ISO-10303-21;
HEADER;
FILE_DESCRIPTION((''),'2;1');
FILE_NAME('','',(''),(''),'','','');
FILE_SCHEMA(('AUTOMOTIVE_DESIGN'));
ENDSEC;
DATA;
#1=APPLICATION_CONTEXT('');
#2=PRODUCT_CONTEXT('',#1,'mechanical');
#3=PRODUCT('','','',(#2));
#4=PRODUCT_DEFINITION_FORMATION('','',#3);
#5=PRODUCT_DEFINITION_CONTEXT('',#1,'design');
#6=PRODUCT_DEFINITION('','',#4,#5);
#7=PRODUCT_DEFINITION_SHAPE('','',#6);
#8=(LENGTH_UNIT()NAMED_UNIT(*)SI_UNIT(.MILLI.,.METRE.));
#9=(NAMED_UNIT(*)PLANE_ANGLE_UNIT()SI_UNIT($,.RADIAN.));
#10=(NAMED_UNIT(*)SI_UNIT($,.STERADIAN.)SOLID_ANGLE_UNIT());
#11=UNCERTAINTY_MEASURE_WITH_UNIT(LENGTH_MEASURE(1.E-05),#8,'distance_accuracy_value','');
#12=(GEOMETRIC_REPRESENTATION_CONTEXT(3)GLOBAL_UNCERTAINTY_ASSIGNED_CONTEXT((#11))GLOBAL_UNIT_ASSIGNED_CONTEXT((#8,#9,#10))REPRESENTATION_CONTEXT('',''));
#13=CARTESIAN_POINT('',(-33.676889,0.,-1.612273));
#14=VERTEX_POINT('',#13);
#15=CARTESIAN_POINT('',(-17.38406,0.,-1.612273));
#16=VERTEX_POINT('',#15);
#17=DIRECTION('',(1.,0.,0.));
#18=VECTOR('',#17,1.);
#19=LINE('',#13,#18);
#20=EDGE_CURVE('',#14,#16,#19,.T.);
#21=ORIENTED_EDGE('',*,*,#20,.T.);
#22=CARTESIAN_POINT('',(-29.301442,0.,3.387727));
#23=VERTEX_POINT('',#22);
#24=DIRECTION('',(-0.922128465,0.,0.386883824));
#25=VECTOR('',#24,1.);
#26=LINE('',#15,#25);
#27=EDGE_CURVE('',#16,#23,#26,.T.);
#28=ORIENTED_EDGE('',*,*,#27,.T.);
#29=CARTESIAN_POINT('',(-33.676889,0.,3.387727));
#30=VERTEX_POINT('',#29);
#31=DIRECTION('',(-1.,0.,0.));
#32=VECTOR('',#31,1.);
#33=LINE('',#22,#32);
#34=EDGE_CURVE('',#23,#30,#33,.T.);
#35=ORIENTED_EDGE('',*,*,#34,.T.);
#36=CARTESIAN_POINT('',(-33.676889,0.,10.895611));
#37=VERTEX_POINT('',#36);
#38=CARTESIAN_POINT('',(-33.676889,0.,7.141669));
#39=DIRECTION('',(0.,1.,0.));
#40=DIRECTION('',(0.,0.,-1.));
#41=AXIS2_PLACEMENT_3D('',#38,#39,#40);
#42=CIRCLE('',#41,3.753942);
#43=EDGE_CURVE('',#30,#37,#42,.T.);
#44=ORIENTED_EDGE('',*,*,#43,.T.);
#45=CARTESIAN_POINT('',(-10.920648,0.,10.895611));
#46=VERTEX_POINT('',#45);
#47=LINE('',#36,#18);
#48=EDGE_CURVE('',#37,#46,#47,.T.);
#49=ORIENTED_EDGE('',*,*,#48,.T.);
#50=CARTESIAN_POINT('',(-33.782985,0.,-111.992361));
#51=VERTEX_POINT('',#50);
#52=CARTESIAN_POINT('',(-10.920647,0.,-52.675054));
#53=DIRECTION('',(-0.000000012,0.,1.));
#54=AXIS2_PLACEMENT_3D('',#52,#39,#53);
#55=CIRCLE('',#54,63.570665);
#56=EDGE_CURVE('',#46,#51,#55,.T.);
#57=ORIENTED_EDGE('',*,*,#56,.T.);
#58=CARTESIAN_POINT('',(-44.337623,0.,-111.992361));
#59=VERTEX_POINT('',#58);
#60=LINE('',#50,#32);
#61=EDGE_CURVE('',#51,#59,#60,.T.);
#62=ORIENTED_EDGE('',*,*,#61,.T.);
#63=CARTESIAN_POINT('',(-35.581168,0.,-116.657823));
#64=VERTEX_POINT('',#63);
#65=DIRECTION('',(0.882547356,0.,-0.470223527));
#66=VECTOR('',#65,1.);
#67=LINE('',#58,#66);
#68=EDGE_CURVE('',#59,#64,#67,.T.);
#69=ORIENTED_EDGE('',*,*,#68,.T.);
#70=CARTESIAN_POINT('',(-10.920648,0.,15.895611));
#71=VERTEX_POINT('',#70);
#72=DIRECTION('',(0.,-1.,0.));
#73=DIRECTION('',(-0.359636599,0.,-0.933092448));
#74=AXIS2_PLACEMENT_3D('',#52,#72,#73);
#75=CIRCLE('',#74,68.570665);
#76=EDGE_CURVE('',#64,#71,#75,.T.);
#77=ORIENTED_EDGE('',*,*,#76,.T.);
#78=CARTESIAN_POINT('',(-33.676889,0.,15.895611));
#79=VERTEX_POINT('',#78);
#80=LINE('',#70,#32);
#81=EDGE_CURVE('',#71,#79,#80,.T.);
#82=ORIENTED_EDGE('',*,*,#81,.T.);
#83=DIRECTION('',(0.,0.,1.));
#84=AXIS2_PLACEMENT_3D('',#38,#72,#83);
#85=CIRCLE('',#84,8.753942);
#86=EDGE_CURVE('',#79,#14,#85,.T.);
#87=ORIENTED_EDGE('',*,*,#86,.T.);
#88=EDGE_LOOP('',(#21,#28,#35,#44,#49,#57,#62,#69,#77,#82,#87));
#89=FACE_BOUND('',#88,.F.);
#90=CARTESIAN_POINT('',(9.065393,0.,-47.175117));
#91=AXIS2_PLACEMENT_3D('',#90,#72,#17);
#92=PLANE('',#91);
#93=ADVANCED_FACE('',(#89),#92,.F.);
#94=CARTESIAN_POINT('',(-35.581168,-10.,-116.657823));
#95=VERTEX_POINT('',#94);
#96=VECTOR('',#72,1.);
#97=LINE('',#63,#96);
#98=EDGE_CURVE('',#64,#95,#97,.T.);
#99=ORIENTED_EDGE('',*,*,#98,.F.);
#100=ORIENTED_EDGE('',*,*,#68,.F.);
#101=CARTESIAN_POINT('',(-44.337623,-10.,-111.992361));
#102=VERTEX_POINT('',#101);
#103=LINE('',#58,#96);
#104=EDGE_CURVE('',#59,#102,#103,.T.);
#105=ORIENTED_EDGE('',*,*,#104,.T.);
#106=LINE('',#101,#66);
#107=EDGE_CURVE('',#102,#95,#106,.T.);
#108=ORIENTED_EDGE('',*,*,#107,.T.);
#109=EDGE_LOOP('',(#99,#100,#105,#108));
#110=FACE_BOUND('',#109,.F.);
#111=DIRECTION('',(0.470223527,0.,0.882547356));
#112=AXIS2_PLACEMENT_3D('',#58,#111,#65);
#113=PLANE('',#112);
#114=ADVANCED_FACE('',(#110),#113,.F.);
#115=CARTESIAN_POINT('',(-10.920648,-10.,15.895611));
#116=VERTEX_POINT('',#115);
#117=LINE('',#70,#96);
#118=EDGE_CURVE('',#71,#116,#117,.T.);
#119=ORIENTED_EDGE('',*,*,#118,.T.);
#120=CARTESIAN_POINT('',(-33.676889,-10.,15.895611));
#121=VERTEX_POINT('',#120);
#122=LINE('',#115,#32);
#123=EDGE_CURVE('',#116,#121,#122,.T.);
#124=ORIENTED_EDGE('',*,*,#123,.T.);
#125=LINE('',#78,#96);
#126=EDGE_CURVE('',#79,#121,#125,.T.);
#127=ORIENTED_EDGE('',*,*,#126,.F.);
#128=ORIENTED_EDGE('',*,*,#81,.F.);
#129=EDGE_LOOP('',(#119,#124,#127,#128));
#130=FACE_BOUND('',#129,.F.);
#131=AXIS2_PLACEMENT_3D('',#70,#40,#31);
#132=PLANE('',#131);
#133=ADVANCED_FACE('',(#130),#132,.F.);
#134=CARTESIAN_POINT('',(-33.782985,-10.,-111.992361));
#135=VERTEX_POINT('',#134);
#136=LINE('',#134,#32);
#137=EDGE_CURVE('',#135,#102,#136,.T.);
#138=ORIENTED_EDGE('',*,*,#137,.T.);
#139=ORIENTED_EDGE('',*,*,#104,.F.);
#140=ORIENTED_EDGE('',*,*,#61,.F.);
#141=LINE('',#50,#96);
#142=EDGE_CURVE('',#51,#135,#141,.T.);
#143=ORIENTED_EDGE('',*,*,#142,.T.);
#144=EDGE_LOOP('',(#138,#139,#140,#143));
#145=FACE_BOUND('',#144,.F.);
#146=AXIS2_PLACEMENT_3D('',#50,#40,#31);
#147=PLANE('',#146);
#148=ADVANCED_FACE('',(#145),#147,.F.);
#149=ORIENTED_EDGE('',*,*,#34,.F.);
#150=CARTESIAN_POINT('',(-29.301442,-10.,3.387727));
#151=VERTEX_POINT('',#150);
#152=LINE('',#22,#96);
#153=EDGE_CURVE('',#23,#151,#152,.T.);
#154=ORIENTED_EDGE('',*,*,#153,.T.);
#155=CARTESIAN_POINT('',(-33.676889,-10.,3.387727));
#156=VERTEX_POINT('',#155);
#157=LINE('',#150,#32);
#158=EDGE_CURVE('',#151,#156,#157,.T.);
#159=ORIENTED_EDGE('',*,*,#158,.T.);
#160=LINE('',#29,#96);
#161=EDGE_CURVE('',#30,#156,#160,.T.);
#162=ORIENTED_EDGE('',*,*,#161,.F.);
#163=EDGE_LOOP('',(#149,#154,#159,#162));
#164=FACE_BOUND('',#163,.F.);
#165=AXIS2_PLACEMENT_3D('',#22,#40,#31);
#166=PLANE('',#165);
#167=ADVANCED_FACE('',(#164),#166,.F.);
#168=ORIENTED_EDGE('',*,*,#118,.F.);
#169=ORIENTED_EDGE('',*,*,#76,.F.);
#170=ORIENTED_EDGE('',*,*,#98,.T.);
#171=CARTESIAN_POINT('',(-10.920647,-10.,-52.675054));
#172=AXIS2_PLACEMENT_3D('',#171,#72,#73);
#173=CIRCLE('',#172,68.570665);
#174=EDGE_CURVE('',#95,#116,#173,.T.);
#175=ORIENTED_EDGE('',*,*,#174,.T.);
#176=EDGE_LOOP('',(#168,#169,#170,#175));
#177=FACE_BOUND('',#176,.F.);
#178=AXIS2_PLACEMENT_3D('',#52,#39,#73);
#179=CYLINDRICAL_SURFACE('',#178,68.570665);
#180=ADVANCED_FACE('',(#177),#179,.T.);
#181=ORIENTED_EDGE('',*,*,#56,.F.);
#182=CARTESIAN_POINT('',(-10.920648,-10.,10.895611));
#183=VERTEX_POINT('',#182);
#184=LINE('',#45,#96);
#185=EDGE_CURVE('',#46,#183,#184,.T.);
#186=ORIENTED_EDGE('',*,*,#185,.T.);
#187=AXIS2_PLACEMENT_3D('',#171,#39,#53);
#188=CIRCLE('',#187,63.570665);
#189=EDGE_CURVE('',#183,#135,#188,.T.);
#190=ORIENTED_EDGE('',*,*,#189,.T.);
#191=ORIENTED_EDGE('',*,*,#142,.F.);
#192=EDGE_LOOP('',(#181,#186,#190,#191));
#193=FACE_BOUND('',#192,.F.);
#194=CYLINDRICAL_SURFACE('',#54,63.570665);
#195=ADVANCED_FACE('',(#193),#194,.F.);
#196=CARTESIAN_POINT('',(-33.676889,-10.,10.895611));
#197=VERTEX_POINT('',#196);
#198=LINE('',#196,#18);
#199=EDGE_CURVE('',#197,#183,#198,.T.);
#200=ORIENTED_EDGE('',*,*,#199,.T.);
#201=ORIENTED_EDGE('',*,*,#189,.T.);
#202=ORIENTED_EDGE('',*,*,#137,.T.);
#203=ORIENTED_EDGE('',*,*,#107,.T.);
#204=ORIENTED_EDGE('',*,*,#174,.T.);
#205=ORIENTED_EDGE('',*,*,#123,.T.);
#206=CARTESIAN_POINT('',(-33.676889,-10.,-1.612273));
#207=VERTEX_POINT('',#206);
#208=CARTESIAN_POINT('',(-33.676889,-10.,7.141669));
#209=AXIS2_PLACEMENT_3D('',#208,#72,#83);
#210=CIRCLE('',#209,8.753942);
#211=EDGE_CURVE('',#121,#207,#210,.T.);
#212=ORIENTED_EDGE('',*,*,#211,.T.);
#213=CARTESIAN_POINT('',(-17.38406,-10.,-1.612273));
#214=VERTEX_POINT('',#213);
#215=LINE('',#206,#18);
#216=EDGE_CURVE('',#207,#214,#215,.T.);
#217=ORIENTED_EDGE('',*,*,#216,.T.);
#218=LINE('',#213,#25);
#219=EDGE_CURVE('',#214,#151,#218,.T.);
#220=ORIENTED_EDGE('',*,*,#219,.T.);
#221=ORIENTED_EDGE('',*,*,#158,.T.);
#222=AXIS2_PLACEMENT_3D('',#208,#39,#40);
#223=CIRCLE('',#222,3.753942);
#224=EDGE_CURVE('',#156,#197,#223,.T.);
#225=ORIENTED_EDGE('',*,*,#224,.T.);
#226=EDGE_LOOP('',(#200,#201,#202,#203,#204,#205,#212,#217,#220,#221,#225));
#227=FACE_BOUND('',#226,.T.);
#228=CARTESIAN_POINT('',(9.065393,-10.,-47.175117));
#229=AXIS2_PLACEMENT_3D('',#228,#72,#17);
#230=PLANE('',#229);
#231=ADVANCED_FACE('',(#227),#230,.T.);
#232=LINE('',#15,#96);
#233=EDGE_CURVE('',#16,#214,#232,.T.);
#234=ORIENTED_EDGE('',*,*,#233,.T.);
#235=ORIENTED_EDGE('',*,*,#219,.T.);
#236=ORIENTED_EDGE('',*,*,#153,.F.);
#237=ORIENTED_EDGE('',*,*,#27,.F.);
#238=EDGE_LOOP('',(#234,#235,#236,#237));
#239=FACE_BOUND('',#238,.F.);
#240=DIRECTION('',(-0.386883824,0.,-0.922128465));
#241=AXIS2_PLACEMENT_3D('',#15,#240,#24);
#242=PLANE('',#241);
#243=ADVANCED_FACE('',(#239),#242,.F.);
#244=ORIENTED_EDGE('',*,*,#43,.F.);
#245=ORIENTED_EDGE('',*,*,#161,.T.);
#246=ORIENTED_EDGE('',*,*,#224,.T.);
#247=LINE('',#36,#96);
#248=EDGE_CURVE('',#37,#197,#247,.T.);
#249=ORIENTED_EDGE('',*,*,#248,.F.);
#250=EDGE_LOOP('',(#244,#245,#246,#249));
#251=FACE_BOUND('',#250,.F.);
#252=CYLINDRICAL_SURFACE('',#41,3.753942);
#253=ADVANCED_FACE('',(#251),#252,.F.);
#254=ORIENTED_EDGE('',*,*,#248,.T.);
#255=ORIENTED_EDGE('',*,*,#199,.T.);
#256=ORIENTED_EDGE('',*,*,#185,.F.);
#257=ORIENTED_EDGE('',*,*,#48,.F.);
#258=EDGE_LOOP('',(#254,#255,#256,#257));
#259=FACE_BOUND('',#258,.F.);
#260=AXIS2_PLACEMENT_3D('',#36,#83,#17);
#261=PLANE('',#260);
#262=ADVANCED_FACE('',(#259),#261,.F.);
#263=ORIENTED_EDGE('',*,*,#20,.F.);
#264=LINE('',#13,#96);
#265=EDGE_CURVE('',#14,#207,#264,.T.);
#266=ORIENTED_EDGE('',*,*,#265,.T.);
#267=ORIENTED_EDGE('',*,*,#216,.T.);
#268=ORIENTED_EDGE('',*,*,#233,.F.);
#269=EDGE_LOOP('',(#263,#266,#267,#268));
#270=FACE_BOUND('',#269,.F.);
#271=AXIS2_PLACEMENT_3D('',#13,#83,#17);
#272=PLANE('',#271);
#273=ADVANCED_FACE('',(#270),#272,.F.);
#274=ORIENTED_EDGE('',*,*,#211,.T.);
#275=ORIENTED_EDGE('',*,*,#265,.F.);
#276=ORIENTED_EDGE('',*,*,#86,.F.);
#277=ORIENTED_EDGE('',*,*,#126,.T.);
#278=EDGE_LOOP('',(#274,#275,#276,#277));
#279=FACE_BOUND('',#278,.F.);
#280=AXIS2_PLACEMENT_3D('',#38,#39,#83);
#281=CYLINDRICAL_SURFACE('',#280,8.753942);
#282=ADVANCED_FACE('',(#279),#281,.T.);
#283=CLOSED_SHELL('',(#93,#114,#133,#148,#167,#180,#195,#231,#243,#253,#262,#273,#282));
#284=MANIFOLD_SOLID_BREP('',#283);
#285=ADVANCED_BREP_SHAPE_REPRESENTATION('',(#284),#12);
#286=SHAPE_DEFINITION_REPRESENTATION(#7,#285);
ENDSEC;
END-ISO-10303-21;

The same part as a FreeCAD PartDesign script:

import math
import FreeCAD as App
import Part
import Sketcher

V = App.Vector
Q = App.Units.Quantity

doc = App.newDocument("Part")
body = doc.addObject("PartDesign::Body", "Body")

sketch1 = body.newObject("Sketcher::SketchObject", "Sketch")
sketch1.AttachmentSupport = (doc.getObject("XZ_Plane"), [""])
sketch1.MapMode = "FlatFace"
sketch1.addGeometry([
    Part.ArcOfCircle(Part.Circle(V(-10.9, -52.7, 0), V(0, 0, 1), 68.6), math.radians(-111), math.radians(90)),
    Part.LineSegment(V(-10.9, 15.9, 0), V(-33.7, 15.9, 0)),
    Part.ArcOfCircle(Part.Circle(V(-33.7, 7.1, 0), V(0, 0, 1), 8.8), math.radians(90), math.radians(270)),
    Part.LineSegment(V(-33.7, -1.6, 0), V(-17.4, -1.6, 0)),
    Part.LineSegment(V(-17.4, -1.6, 0), V(-29.3, 3.4, 0)),
    Part.LineSegment(V(-29.3, 3.4, 0), V(-33.7, 3.4, 0)),
    Part.ArcOfCircle(Part.Circle(V(-33.7, 7.1, 0), V(0, 0, 1), 3.8), math.radians(90), math.radians(270)),
    Part.LineSegment(V(-33.7, 10.9, 0), V(-10.9, 10.9, 0)),
    Part.ArcOfCircle(Part.Circle(V(-10.9, -52.7, 0), V(0, 0, 1), 63.6), math.radians(-111), math.radians(90)),
    Part.LineSegment(V(-33.8, -112, 0), V(-44.3, -112, 0)),
    Part.LineSegment(V(-44.3, -112, 0), V(-35.6, -116.7, 0)),
], False)
sketch1.addConstraint([
    Sketcher.Constraint("Tangent", 0, 2, 1, 1),
    Sketcher.Constraint("Tangent", 1, 2, 2, 1),
    Sketcher.Constraint("Tangent", 2, 2, 3, 1),
    Sketcher.Constraint("Coincident", 3, 2, 4, 1),
    Sketcher.Constraint("Coincident", 4, 2, 5, 1),
    Sketcher.Constraint("Tangent", 5, 2, 6, 2),
    Sketcher.Constraint("Tangent", 6, 1, 7, 1),
    Sketcher.Constraint("Tangent", 7, 2, 8, 2),
    Sketcher.Constraint("Coincident", 8, 1, 9, 1),
    Sketcher.Constraint("Coincident", 9, 2, 10, 1),
    Sketcher.Constraint("Coincident", 10, 2, 0, 1),
    Sketcher.Constraint("Horizontal", 1),
    Sketcher.Constraint("Horizontal", 3),
    Sketcher.Constraint("Horizontal", 5),
    Sketcher.Constraint("Horizontal", 7),
    Sketcher.Constraint("Horizontal", 9),
    Sketcher.Constraint("Coincident", 6, 3, 2, 3),
    Sketcher.Constraint("Coincident", 8, 3, 0, 3),
    Sketcher.Constraint("DistanceY", 2, 2, 4, 2, Q("5 mm")),
    Sketcher.Constraint("Radius", 6, Q("3.753942 mm")),
    Sketcher.Constraint("Radius", 0, Q("68.570665 mm")),
    Sketcher.Constraint("DistanceX", 1, 2, 1, 1, Q("22.756241 mm")),
    Sketcher.Constraint("DistanceX", 3, 1, 3, 2, Q("16.292829 mm")),
    Sketcher.Constraint("DistanceX", 9, 2, 9, 1, Q("10.554638 mm")),
    Sketcher.Constraint("DistanceX", 5, 2, 5, 1, Q("4.375447 mm")),
    Sketcher.Constraint("DistanceX", 2, 3, -1, 1, Q("33.676889 mm")),
    Sketcher.Constraint("DistanceY", -1, 1, 2, 3, Q("7.141669 mm")),
    Sketcher.Constraint("DistanceY", 8, 1, -1, 1, Q("111.992361 mm")),
    Sketcher.Constraint("DistanceY", 10, 2, 8, 1, Q("4.665462 mm")),
])
pad1 = body.newObject("PartDesign::Pad", "Pad")
pad1.Profile = sketch1
pad1.Length = 10

doc.recompute()
